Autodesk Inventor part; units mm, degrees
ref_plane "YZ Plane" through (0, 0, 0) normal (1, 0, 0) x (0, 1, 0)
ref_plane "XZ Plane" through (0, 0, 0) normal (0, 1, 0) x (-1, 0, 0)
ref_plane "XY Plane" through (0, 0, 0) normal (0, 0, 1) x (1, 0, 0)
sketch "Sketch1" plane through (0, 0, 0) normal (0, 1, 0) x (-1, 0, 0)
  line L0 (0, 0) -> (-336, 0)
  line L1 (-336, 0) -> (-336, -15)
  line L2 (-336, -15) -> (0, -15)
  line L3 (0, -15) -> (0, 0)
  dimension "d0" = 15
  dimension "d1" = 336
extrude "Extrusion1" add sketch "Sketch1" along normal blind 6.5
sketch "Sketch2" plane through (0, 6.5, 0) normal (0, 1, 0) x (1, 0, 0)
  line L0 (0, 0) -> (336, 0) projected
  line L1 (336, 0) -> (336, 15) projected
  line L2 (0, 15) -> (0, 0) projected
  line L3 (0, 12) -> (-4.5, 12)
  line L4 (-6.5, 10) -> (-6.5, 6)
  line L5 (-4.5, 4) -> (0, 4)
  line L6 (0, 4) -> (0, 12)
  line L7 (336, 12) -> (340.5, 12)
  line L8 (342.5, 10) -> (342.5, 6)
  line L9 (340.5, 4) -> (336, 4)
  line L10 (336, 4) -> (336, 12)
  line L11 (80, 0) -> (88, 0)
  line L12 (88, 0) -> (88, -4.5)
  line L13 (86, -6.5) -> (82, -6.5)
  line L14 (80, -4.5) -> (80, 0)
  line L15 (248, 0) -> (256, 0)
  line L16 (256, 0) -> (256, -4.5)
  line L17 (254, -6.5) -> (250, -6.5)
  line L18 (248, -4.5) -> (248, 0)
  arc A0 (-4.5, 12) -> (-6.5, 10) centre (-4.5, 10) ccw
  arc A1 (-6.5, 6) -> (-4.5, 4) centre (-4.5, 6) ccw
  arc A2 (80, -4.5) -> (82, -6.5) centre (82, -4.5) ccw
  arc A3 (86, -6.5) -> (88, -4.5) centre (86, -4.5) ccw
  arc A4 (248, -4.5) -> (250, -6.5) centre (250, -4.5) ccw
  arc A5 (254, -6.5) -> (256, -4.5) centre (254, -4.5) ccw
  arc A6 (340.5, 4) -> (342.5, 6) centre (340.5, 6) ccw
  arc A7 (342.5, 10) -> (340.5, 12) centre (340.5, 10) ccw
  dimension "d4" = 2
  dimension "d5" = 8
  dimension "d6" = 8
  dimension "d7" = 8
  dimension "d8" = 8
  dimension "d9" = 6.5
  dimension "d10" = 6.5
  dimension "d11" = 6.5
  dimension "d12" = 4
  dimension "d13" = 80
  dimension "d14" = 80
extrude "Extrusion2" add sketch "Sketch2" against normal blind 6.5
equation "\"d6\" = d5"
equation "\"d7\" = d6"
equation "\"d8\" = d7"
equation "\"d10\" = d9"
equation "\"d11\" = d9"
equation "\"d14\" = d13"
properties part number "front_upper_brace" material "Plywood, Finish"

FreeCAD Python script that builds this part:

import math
import FreeCAD as App
import Part
import Sketcher
from FreeCAD import Vector
Q = App.Units.Quantity


def add_polygon(sketch, points):
    """Adds a closed chain of lines whose ends are joined by coincident constraints."""
    first, n = sketch.GeometryCount, len(points)
    for a, b in zip(points, points[1:] + points[:1]):
        sketch.addGeometry(Part.LineSegment(App.Vector(*a, 0), App.Vector(*b, 0)), False)
    for i in range(n):
        sketch.addConstraint(Sketcher.Constraint("Coincident", first + i, 2, first + (i + 1) % n, 1))

doc = App.newDocument("Part")
body = doc.addObject("PartDesign::Body", "Body")

sketch1 = body.newObject("Sketcher::SketchObject", "Sketch")
sketch1.AttachmentSupport = (doc.getObject("XZ_Plane"), [""])
sketch1.MapMode = "FlatFace"
add_polygon(sketch1, [(0, -15), (0, 0), (336, 0), (336, -15)])
sketch1.addConstraint([
    Sketcher.Constraint("Vertical", 0),
    Sketcher.Constraint("Horizontal", 1),
    Sketcher.Constraint("Vertical", 2),
    Sketcher.Constraint("Horizontal", 3),
    Sketcher.Constraint("Coincident", 0, 2, -1, 1),
    Sketcher.Constraint("DistanceX", 1, 1, 1, 2, Q("336 mm")),
    Sketcher.Constraint("DistanceY", 0, 1, 0, 2, Q("15 mm")),
])
pad1 = body.newObject("PartDesign::Pad", "Pad")
pad1.Profile = sketch1
pad1.Length = 6.5
pad1.Reversed = True

sketch2 = body.newObject("Sketcher::SketchObject", "Sketch001")
sketch2.AttachmentSupport = (doc.getObject("XZ_Plane"), [""])
sketch2.MapMode = "FlatFace"
sketch2.AttachmentOffset = App.Placement(Vector(0, 0, -6.5), App.Rotation())
sketch2.addGeometry([
    Part.LineSegment(Vector(336, -12, 0), Vector(336, -4, 0)),
    Part.LineSegment(Vector(336, -4, 0), Vector(340.5, -4, 0)),
    Part.ArcOfCircle(Part.Circle(Vector(340.5, -6, 0), Vector(0, 0, 1), 2), math.radians(0), math.radians(90)),
    Part.LineSegment(Vector(342.5, -6, 0), Vector(342.5, -10, 0)),
    Part.ArcOfCircle(Part.Circle(Vector(340.5, -10, 0), Vector(0, 0, 1), 2), math.radians(-90), math.radians(0)),
    Part.LineSegment(Vector(340.5, -12, 0), Vector(336, -12, 0)),
    Part.LineSegment(Vector(256, 0, 0), Vector(248, 0, 0)),
    Part.LineSegment(Vector(248, 0, 0), Vector(248, 4.5, 0)),
    Part.ArcOfCircle(Part.Circle(Vector(250, 4.5, 0), Vector(0, 0, 1), 2), math.radians(90), math.radians(180)),
    Part.LineSegment(Vector(250, 6.5, 0), Vector(254, 6.5, 0)),
    Part.ArcOfCircle(Part.Circle(Vector(254, 4.5, 0), Vector(0, 0, 1), 2), math.radians(0), math.radians(90)),
    Part.LineSegment(Vector(256, 4.5, 0), Vector(256, 0, 0)),
    Part.LineSegment(Vector(88, 0, 0), Vector(80, 0, 0)),
    Part.LineSegment(Vector(80, 0, 0), Vector(80, 4.5, 0)),
    Part.ArcOfCircle(Part.Circle(Vector(82, 4.5, 0), Vector(0, 0, 1), 2), math.radians(90), math.radians(180)),
    Part.LineSegment(Vector(82, 6.5, 0), Vector(86, 6.5, 0)),
    Part.ArcOfCircle(Part.Circle(Vector(86, 4.5, 0), Vector(0, 0, 1), 2), math.radians(0), math.radians(90)),
    Part.LineSegment(Vector(88, 4.5, 0), Vector(88, 0, 0)),
    Part.LineSegment(Vector(-4.5, -4, 0), Vector(0, -4, 0)),
    Part.LineSegment(Vector(0, -4, 0), Vector(0, -12, 0)),
    Part.LineSegment(Vector(0, -12, 0), Vector(-4.5, -12, 0)),
    Part.ArcOfCircle(Part.Circle(Vector(-4.5, -10, 0), Vector(0, 0, 1), 2), math.radians(180), math.radians(270)),
    Part.LineSegment(Vector(-6.5, -10, 0), Vector(-6.5, -6, 0)),
    Part.ArcOfCircle(Part.Circle(Vector(-4.5, -6, 0), Vector(0, 0, 1), 2), math.radians(90), math.radians(180)),
], False)
sketch2.addConstraint([
    Sketcher.Constraint("Coincident", 0, 2, 1, 1),
    Sketcher.Constraint("Tangent", 1, 2, 2, 2),
    Sketcher.Constraint("Tangent", 2, 1, 3, 1),
    Sketcher.Constraint("Tangent", 3, 2, 4, 2),
    Sketcher.Constraint("Tangent", 4, 1, 5, 1),
    Sketcher.Constraint("Coincident", 5, 2, 0, 1),
    Sketcher.Constraint("Coincident", 6, 2, 7, 1),
    Sketcher.Constraint("Tangent", 7, 2, 8, 2),
    Sketcher.Constraint("Tangent", 8, 1, 9, 1),
    Sketcher.Constraint("Tangent", 9, 2, 10, 2),
    Sketcher.Constraint("Tangent", 10, 1, 11, 1),
    Sketcher.Constraint("Coincident", 11, 2, 6, 1),
    Sketcher.Constraint("Coincident", 12, 2, 13, 1),
    Sketcher.Constraint("Tangent", 13, 2, 14, 2),
    Sketcher.Constraint("Tangent", 14, 1, 15, 1),
    Sketcher.Constraint("Tangent", 15, 2, 16, 2),
    Sketcher.Constraint("Tangent", 16, 1, 17, 1),
    Sketcher.Constraint("Coincident", 17, 2, 12, 1),
    Sketcher.Constraint("Coincident", 18, 2, 19, 1),
    Sketcher.Constraint("Coincident", 19, 2, 20, 1),
    Sketcher.Constraint("Tangent", 20, 2, 21, 2),
    Sketcher.Constraint("Tangent", 21, 1, 22, 1),
    Sketcher.Constraint("Tangent", 22, 2, 23, 2),
    Sketcher.Constraint("Tangent", 23, 1, 18, 1),
    Sketcher.Constraint("Vertical", 0),
    Sketcher.Constraint("Horizontal", 1),
    Sketcher.Constraint("Vertical", 3),
    Sketcher.Constraint("Horizontal", 5),
    Sketcher.Constraint("Horizontal", 6),
    Sketcher.Constraint("Vertical", 7),
    Sketcher.Constraint("Horizontal", 9),
    Sketcher.Constraint("Vertical", 11),
    Sketcher.Constraint("Horizontal", 12),
    Sketcher.Constraint("Vertical", 13),
    Sketcher.Constraint("Horizontal", 15),
    Sketcher.Constraint("Vertical", 17),
    Sketcher.Constraint("Horizontal", 18),
    Sketcher.Constraint("Vertical", 19),
    Sketcher.Constraint("Horizontal", 20),
    Sketcher.Constraint("Vertical", 22),
    Sketcher.Constraint("Equal", 2, 4),
    Sketcher.Constraint("Equal", 4, 8),
    Sketcher.Constraint("Equal", 8, 10),
    Sketcher.Constraint("Equal", 10, 14),
    Sketcher.Constraint("Equal", 14, 16),
    Sketcher.Constraint("Equal", 16, 21),
    Sketcher.Constraint("Equal", 21, 23),
    Sketcher.Constraint("PointOnObject", 6, 2, -1),
    Sketcher.Constraint("PointOnObject", 12, 2, -1),
    Sketcher.Constraint("PointOnObject", 18, 2, -2),
    Sketcher.Constraint("Horizontal", 10, 3, 14, 3),
    Sketcher.Constraint("Horizontal", 4, 3, 21, 3),
    Sketcher.Constraint("Horizontal", 2, 3, 23, 3),
    Sketcher.Constraint("Equal", 6, 12),
    Sketcher.Constraint("Equal", 5, 18),
    Sketcher.Constraint("Equal", 12, 0),
    Sketcher.Constraint("Equal", 20, 7),
    Sketcher.Constraint("Radius", 2, Q("2 mm")),
    Sketcher.Constraint("DistanceX", 6, 2, 6, 1, Q("8 mm")),
    Sketcher.Constraint("DistanceY", 0, 2, -1, 1, Q("4 mm")),
    Sketcher.Constraint("DistanceX", -1, 1, 12, 2, Q("80 mm")),
    Sketcher.Constraint("DistanceY", -1, 1, 8, 1, Q("6.5 mm")),
    Sketcher.Constraint("DistanceX", -1, 1, 8, 3, Q("250 mm")),
    Sketcher.Constraint("DistanceX", -1, 1, 0, 2, Q("336 mm")),
])
pad2 = body.newObject("PartDesign::Pad", "Pad001")
pad2.Profile = sketch2
pad2.Length = 6.5

doc.recompute()
